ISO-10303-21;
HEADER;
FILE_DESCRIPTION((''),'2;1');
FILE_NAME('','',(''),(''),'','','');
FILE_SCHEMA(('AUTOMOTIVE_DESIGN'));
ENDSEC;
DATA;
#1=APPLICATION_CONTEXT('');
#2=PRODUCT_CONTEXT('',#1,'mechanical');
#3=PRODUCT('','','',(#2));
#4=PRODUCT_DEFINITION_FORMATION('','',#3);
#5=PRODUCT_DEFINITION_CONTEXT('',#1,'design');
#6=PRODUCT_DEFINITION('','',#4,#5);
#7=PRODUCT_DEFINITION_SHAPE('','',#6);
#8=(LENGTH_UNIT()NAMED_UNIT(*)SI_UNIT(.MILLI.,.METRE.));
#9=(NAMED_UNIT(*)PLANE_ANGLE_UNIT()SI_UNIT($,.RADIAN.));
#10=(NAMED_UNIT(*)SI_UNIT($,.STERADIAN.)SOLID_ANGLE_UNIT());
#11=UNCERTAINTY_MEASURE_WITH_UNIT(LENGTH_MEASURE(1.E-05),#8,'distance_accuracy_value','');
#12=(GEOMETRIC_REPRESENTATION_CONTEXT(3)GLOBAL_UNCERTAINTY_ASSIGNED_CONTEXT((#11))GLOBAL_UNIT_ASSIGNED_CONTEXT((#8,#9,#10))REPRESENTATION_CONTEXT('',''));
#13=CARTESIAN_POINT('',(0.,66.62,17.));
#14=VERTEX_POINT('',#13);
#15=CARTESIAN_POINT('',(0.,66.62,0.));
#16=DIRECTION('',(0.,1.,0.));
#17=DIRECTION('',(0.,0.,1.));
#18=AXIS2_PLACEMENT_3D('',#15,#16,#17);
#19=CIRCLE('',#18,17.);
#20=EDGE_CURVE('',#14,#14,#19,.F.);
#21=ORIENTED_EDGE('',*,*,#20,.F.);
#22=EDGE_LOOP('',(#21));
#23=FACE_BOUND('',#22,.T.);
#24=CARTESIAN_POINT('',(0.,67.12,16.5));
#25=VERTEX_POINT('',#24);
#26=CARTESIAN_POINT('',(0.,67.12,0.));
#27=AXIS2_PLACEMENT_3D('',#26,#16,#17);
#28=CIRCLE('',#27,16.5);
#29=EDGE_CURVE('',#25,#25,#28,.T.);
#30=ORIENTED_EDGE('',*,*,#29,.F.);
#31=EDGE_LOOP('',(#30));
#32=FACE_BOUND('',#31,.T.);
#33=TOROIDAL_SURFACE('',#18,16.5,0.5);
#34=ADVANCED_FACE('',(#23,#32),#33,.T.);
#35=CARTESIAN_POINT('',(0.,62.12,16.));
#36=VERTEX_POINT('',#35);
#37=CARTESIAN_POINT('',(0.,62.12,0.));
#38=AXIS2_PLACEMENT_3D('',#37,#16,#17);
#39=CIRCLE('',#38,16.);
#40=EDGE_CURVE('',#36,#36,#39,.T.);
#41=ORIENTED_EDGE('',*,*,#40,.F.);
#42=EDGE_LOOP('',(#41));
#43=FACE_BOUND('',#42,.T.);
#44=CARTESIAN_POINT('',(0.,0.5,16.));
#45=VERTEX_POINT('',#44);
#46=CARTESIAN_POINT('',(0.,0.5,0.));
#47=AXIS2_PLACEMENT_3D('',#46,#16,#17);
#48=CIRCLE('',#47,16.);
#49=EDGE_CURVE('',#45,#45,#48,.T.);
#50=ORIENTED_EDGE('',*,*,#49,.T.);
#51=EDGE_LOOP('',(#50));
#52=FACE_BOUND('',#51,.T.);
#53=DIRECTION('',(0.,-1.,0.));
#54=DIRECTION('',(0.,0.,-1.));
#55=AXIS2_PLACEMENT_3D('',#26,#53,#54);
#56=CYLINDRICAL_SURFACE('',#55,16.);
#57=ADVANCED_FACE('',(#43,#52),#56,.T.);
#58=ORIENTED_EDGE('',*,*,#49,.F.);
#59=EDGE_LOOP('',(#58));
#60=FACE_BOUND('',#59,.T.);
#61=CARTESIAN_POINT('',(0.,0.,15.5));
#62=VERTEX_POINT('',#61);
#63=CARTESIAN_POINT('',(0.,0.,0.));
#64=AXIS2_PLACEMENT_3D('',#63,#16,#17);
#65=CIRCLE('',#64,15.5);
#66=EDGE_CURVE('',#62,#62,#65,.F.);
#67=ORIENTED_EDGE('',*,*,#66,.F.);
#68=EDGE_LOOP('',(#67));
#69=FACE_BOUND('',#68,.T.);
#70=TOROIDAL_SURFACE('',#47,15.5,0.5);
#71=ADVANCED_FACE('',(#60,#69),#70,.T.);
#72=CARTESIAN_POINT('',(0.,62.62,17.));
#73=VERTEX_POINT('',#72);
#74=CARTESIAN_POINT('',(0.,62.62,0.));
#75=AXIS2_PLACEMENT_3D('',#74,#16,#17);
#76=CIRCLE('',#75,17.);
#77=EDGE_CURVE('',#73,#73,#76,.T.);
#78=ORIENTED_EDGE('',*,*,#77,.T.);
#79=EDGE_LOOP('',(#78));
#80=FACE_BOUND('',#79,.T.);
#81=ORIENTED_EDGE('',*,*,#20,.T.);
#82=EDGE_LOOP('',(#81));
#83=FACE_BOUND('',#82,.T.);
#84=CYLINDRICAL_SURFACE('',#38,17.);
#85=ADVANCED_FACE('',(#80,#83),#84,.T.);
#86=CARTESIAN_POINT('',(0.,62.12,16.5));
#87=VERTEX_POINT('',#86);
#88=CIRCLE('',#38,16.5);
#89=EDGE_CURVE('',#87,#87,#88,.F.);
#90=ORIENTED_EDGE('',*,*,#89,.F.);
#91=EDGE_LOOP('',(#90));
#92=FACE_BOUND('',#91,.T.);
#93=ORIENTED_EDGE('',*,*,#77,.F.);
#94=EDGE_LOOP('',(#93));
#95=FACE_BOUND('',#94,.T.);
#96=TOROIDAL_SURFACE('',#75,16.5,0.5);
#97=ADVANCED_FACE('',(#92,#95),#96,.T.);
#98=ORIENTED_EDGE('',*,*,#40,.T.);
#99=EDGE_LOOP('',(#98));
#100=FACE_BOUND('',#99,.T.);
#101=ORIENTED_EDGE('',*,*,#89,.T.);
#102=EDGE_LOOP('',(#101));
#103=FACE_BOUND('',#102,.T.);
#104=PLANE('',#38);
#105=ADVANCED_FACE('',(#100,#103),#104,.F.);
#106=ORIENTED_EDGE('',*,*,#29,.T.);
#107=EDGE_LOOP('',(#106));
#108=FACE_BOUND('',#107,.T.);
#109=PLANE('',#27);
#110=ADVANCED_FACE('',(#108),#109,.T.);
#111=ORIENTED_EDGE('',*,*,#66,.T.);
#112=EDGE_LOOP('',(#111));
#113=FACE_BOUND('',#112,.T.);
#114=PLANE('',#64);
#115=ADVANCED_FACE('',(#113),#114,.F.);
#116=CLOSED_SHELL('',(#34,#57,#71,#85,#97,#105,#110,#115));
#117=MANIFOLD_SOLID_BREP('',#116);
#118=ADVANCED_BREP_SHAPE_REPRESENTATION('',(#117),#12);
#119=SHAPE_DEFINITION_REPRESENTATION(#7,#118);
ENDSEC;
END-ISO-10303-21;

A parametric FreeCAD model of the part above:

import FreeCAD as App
import Part
import Sketcher
from FreeCAD import Vector


def edges_at(feature, points):
    """Names of the edges that pass closest to the given points."""
    edges = feature.Shape.Edges
    near = lambda p: min(range(len(edges)), key=lambda i: edges[i].distToShape(Part.Vertex(*p))[0])
    return sorted({f"Edge{near(p) + 1}" for p in points})

doc = App.newDocument("Part")
body = doc.addObject("PartDesign::Body", "Body")

# Sketch on XZ plane
sketch1 = body.newObject("Sketcher::SketchObject", "Sketch")
sketch1.AttachmentSupport = (doc.getObject("XZ_Plane"), [""])
sketch1.MapMode = "FlatFace"
sketch1.addGeometry(Part.Circle(Vector(0, 0, 0), Vector(0, 0, 1), 16), False)
sketch1.addConstraint([
    Sketcher.Constraint("Coincident", 0, 3, -1, 1),
    Sketcher.Constraint("Diameter", 0, 32.0),
])
pad1 = body.newObject("PartDesign::Pad", "Pad")
pad1.Profile = sketch1
pad1.Length = 67.12
pad1.Reversed = True

# Sketch on XZ plane
sketch2 = body.newObject("Sketcher::SketchObject", "Sketch001")
sketch2.AttachmentSupport = (doc.getObject("XZ_Plane"), [""])
sketch2.MapMode = "FlatFace"
sketch2.AttachmentOffset = App.Placement(Vector(0, 0, -67.12), App.Rotation())
sketch2.addGeometry([
    Part.Circle(Vector(0, 0, 0), Vector(0, 0, 1), 17),
    Part.Circle(Vector(0, 0, 0), Vector(0, 0, 1), 16),
], False)
sketch2.addConstraint([
    Sketcher.Constraint("Coincident", 0, 3, -1, 1),
    Sketcher.Constraint("Coincident", 1, 3, -1, 1),
    Sketcher.Constraint("Diameter", 0, 34.0),
    Sketcher.Constraint("Diameter", 1, 32.0),
])
pad2 = body.newObject("PartDesign::Pad", "Pad001")
pad2.Profile = sketch2
pad2.Length = 5
doc.recompute()

fillet = body.newObject("PartDesign::Fillet", "Fillet")
fillet.Base = (pad2, edges_at(pad2, [(-16, 0, 0), (-17, 62.12, 0), (-17, 67.12, 0)]))
fillet.Radius = 0.5

doc.recompute()
